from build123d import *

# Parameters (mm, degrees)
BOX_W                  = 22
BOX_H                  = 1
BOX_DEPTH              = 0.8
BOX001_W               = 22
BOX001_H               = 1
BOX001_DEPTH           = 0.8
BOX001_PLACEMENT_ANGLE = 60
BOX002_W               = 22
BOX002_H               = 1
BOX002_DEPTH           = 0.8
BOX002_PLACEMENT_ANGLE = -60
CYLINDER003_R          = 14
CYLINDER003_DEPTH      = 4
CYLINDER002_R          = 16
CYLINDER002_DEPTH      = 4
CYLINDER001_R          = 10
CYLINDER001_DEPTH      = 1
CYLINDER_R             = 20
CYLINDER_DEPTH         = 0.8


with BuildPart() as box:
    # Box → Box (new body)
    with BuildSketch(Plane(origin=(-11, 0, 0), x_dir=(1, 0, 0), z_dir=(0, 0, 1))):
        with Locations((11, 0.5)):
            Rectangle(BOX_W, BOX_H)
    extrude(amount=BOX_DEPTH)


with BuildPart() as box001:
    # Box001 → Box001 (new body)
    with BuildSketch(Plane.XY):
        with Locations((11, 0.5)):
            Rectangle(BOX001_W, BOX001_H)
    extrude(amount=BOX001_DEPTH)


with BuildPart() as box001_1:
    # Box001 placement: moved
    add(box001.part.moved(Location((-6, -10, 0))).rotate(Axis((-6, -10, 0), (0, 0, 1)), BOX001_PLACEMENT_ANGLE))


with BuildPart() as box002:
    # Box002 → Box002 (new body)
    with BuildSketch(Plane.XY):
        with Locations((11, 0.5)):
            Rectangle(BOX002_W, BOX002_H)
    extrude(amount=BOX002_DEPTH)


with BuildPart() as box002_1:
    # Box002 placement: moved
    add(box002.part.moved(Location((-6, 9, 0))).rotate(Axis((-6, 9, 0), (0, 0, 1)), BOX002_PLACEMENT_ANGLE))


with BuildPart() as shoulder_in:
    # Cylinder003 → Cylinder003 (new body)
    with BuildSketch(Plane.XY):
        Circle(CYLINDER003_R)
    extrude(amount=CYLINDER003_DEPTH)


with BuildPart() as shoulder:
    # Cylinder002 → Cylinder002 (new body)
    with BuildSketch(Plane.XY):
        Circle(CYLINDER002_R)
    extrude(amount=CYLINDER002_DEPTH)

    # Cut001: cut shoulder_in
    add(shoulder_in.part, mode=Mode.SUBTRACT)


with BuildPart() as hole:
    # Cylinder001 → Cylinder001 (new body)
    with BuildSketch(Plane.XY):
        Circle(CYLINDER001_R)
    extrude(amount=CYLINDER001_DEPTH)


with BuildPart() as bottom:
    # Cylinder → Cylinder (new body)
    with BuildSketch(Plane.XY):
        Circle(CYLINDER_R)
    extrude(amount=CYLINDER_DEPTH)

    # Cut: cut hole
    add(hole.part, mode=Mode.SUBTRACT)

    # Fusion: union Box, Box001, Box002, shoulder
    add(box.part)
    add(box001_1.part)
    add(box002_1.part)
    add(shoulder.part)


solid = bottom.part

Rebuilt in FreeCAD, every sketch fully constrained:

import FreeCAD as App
import Part
import Sketcher
Q = App.Units.Quantity

doc = App.newDocument("Part")
body = doc.addObject("PartDesign::Body", "Body")

sketch1 = body.newObject("Sketcher::SketchObject", "Sketch")
sketch1.AttachmentSupport = (doc.getObject("XY_Plane"), [""])
sketch1.MapMode = "FlatFace"
sketch1.addGeometry(Part.LineSegment(App.Vector(-11, 1, 0), App.Vector(-11, 0, 0)), False)
sketch1.addGeometry(Part.LineSegment(App.Vector(-11, 0, 0), App.Vector(11, 0, 0)), False)
sketch1.addGeometry(Part.LineSegment(App.Vector(11, 0, 0), App.Vector(11, 1, 0)), False)
sketch1.addGeometry(Part.LineSegment(App.Vector(11, 1, 0), App.Vector(-11, 1, 0)), False)
sketch1.addConstraint(Sketcher.Constraint("Coincident", 0, 2, 1, 1))
sketch1.addConstraint(Sketcher.Constraint("Coincident", 1, 2, 2, 1))
sketch1.addConstraint(Sketcher.Constraint("Coincident", 2, 2, 3, 1))
sketch1.addConstraint(Sketcher.Constraint("Coincident", 3, 2, 0, 1))
sketch1.addConstraint(Sketcher.Constraint("Vertical", 0))
sketch1.addConstraint(Sketcher.Constraint("Horizontal", 1))
sketch1.addConstraint(Sketcher.Constraint("Vertical", 2))
sketch1.addConstraint(Sketcher.Constraint("Horizontal", 3))
sketch1.addConstraint(Sketcher.Constraint("Symmetric", 0, 2, 1, 2, -1, 1))
sketch1.addConstraint(Sketcher.Constraint("DistanceX", 1, 1, 1, 2, Q("22 mm")))
sketch1.addConstraint(Sketcher.Constraint("DistanceY", 0, 2, 0, 1, Q("1 mm")))
pad1 = body.newObject("PartDesign::Pad", "Pad")
pad1.Profile = sketch1
pad1.Length = 0.8
body2 = doc.addObject("PartDesign::Body", "Body001")

sketch2 = body2.newObject("Sketcher::SketchObject", "Sketch001")
sketch2.AttachmentSupport = (doc.getObject("XY_Plane001"), [""])
sketch2.MapMode = "FlatFace"
sketch2.addGeometry(Part.LineSegment(App.Vector(0, 1, 0), App.Vector(0, 0, 0)), False)
sketch2.addGeometry(Part.LineSegment(App.Vector(0, 0, 0), App.Vector(22, 0, 0)), False)
sketch2.addGeometry(Part.LineSegment(App.Vector(22, 0, 0), App.Vector(22, 1, 0)), False)
sketch2.addGeometry(Part.LineSegment(App.Vector(22, 1, 0), App.Vector(0, 1, 0)), False)
sketch2.addConstraint(Sketcher.Constraint("Coincident", 0, 2, 1, 1))
sketch2.addConstraint(Sketcher.Constraint("Coincident", 1, 2, 2, 1))
sketch2.addConstraint(Sketcher.Constraint("Coincident", 2, 2, 3, 1))
sketch2.addConstraint(Sketcher.Constraint("Coincident", 3, 2, 0, 1))
sketch2.addConstraint(Sketcher.Constraint("Vertical", 0))
sketch2.addConstraint(Sketcher.Constraint("Horizontal", 1))
sketch2.addConstraint(Sketcher.Constraint("Vertical", 2))
sketch2.addConstraint(Sketcher.Constraint("Horizontal", 3))
sketch2.addConstraint(Sketcher.Constraint("Coincident", 0, 2, -1, 1))
sketch2.addConstraint(Sketcher.Constraint("DistanceX", 1, 1, 1, 2, Q("22 mm")))
sketch2.addConstraint(Sketcher.Constraint("DistanceY", 0, 2, 0, 1, Q("1 mm")))
pad2 = body2.newObject("PartDesign::Pad", "Pad001")
pad2.Profile = sketch2
pad2.Length = 0.8
body3 = doc.addObject("PartDesign::Body", "Body002")
doc.recompute()

body2.Placement = App.Placement(App.Vector(-6, -10, 0), App.Rotation(App.Vector(0, 0, 1), 60))
boolean = body3.newObject("PartDesign::Boolean", "Boolean")
boolean.Type = "Fuse"
boolean.addObjects([body2])
body4 = doc.addObject("PartDesign::Body", "Body003")

sketch3 = body4.newObject("Sketcher::SketchObject", "Sketch002")
sketch3.AttachmentSupport = (doc.getObject("XY_Plane003"), [""])
sketch3.MapMode = "FlatFace"
sketch3.addGeometry(Part.LineSegment(App.Vector(0, 1, 0), App.Vector(0, 0, 0)), False)
sketch3.addGeometry(Part.LineSegment(App.Vector(0, 0, 0), App.Vector(22, 0, 0)), False)
sketch3.addGeometry(Part.LineSegment(App.Vector(22, 0, 0), App.Vector(22, 1, 0)), False)
sketch3.addGeometry(Part.LineSegment(App.Vector(22, 1, 0), App.Vector(0, 1, 0)), False)
sketch3.addConstraint(Sketcher.Constraint("Coincident", 0, 2, 1, 1))
sketch3.addConstraint(Sketcher.Constraint("Coincident", 1, 2, 2, 1))
sketch3.addConstraint(Sketcher.Constraint("Coincident", 2, 2, 3, 1))
sketch3.addConstraint(Sketcher.Constraint("Coincident", 3, 2, 0, 1))
sketch3.addConstraint(Sketcher.Constraint("Vertical", 0))
sketch3.addConstraint(Sketcher.Constraint("Horizontal", 1))
sketch3.addConstraint(Sketcher.Constraint("Vertical", 2))
sketch3.addConstraint(Sketcher.Constraint("Horizontal", 3))
sketch3.addConstraint(Sketcher.Constraint("Coincident", 0, 2, -1, 1))
sketch3.addConstraint(Sketcher.Constraint("DistanceX", 1, 1, 1, 2, Q("22 mm")))
sketch3.addConstraint(Sketcher.Constraint("DistanceY", 0, 2, 0, 1, Q("1 mm")))
pad3 = body4.newObject("PartDesign::Pad", "Pad002")
pad3.Profile = sketch3
pad3.Length = 0.8
body5 = doc.addObject("PartDesign::Body", "Body004")
doc.recompute()

body4.Placement = App.Placement(App.Vector(-6, 9, 0), App.Rotation(App.Vector(0, 0, 1), 300))
boolean2 = body5.newObject("PartDesign::Boolean", "Boolean001")
boolean2.Type = "Fuse"
boolean2.addObjects([body4])
body6 = doc.addObject("PartDesign::Body", "Body005")

sketch4 = body6.newObject("Sketcher::SketchObject", "Sketch003")
sketch4.AttachmentSupport = (doc.getObject("XY_Plane005"), [""])
sketch4.MapMode = "FlatFace"
sketch4.addGeometry(Part.Circle(App.Vector(0, 0, 0), App.Vector(0, 0, 1), 14), False)
sketch4.addConstraint(Sketcher.Constraint("Coincident", 0, 3, -1, 1))
sketch4.addConstraint(Sketcher.Constraint("Diameter", 0, Q("28 mm")))
pad4 = body6.newObject("PartDesign::Pad", "Pad003")
pad4.Profile = sketch4
pad4.Length = 4
body7 = doc.addObject("PartDesign::Body", "Body006")

sketch5 = body7.newObject("Sketcher::SketchObject", "Sketch004")
sketch5.AttachmentSupport = (doc.getObject("XY_Plane006"), [""])
sketch5.MapMode = "FlatFace"
sketch5.addGeometry(Part.Circle(App.Vector(0, 0, 0), App.Vector(0, 0, 1), 16), False)
sketch5.addConstraint(Sketcher.Constraint("Coincident", 0, 3, -1, 1))
sketch5.addConstraint(Sketcher.Constraint("Diameter", 0, Q("32 mm")))
pad5 = body7.newObject("PartDesign::Pad", "Pad004")
pad5.Profile = sketch5
pad5.Length = 4
doc.recompute()

boolean3 = body7.newObject("PartDesign::Boolean", "Boolean002")
boolean3.Type = "Cut"
boolean3.addObjects([body6])
body8 = doc.addObject("PartDesign::Body", "Body007")

sketch6 = body8.newObject("Sketcher::SketchObject", "Sketch005")
sketch6.AttachmentSupport = (doc.getObject("XY_Plane007"), [""])
sketch6.MapMode = "FlatFace"
sketch6.addGeometry(Part.Circle(App.Vector(0, 0, 0), App.Vector(0, 0, 1), 10), False)
sketch6.addConstraint(Sketcher.Constraint("Coincident", 0, 3, -1, 1))
sketch6.addConstraint(Sketcher.Constraint("Diameter", 0, Q("20 mm")))
pad6 = body8.newObject("PartDesign::Pad", "Pad005")
pad6.Profile = sketch6
pad6.Length = 1
body9 = doc.addObject("PartDesign::Body", "Body008")

sketch7 = body9.newObject("Sketcher::SketchObject", "Sketch006")
sketch7.AttachmentSupport = (doc.getObject("XY_Plane008"), [""])
sketch7.MapMode = "FlatFace"
sketch7.addGeometry(Part.Circle(App.Vector(0, 0, 0), App.Vector(0, 0, 1), 20), False)
sketch7.addConstraint(Sketcher.Constraint("Coincident", 0, 3, -1, 1))
sketch7.addConstraint(Sketcher.Constraint("Diameter", 0, Q("40 mm")))
pad7 = body9.newObject("PartDesign::Pad", "Pad006")
pad7.Profile = sketch7
pad7.Length = 0.8
doc.recompute()

boolean4 = body9.newObject("PartDesign::Boolean", "Boolean003")
boolean4.Type = "Cut"
boolean4.addObjects([body8])
doc.recompute()

boolean5 = body9.newObject("PartDesign::Boolean", "Boolean004")
boolean5.Type = "Fuse"
boolean5.addObjects([body])
doc.recompute()

boolean6 = body9.newObject("PartDesign::Boolean", "Boolean005")
boolean6.Type = "Fuse"
boolean6.addObjects([body3])
doc.recompute()

boolean7 = body9.newObject("PartDesign::Boolean", "Boolean006")
boolean7.Type = "Fuse"
boolean7.addObjects([body5])
doc.recompute()

boolean8 = body9.newObject("PartDesign::Boolean", "Boolean007")
boolean8.Type = "Fuse"
boolean8.addObjects([body7])

doc.recompute()
